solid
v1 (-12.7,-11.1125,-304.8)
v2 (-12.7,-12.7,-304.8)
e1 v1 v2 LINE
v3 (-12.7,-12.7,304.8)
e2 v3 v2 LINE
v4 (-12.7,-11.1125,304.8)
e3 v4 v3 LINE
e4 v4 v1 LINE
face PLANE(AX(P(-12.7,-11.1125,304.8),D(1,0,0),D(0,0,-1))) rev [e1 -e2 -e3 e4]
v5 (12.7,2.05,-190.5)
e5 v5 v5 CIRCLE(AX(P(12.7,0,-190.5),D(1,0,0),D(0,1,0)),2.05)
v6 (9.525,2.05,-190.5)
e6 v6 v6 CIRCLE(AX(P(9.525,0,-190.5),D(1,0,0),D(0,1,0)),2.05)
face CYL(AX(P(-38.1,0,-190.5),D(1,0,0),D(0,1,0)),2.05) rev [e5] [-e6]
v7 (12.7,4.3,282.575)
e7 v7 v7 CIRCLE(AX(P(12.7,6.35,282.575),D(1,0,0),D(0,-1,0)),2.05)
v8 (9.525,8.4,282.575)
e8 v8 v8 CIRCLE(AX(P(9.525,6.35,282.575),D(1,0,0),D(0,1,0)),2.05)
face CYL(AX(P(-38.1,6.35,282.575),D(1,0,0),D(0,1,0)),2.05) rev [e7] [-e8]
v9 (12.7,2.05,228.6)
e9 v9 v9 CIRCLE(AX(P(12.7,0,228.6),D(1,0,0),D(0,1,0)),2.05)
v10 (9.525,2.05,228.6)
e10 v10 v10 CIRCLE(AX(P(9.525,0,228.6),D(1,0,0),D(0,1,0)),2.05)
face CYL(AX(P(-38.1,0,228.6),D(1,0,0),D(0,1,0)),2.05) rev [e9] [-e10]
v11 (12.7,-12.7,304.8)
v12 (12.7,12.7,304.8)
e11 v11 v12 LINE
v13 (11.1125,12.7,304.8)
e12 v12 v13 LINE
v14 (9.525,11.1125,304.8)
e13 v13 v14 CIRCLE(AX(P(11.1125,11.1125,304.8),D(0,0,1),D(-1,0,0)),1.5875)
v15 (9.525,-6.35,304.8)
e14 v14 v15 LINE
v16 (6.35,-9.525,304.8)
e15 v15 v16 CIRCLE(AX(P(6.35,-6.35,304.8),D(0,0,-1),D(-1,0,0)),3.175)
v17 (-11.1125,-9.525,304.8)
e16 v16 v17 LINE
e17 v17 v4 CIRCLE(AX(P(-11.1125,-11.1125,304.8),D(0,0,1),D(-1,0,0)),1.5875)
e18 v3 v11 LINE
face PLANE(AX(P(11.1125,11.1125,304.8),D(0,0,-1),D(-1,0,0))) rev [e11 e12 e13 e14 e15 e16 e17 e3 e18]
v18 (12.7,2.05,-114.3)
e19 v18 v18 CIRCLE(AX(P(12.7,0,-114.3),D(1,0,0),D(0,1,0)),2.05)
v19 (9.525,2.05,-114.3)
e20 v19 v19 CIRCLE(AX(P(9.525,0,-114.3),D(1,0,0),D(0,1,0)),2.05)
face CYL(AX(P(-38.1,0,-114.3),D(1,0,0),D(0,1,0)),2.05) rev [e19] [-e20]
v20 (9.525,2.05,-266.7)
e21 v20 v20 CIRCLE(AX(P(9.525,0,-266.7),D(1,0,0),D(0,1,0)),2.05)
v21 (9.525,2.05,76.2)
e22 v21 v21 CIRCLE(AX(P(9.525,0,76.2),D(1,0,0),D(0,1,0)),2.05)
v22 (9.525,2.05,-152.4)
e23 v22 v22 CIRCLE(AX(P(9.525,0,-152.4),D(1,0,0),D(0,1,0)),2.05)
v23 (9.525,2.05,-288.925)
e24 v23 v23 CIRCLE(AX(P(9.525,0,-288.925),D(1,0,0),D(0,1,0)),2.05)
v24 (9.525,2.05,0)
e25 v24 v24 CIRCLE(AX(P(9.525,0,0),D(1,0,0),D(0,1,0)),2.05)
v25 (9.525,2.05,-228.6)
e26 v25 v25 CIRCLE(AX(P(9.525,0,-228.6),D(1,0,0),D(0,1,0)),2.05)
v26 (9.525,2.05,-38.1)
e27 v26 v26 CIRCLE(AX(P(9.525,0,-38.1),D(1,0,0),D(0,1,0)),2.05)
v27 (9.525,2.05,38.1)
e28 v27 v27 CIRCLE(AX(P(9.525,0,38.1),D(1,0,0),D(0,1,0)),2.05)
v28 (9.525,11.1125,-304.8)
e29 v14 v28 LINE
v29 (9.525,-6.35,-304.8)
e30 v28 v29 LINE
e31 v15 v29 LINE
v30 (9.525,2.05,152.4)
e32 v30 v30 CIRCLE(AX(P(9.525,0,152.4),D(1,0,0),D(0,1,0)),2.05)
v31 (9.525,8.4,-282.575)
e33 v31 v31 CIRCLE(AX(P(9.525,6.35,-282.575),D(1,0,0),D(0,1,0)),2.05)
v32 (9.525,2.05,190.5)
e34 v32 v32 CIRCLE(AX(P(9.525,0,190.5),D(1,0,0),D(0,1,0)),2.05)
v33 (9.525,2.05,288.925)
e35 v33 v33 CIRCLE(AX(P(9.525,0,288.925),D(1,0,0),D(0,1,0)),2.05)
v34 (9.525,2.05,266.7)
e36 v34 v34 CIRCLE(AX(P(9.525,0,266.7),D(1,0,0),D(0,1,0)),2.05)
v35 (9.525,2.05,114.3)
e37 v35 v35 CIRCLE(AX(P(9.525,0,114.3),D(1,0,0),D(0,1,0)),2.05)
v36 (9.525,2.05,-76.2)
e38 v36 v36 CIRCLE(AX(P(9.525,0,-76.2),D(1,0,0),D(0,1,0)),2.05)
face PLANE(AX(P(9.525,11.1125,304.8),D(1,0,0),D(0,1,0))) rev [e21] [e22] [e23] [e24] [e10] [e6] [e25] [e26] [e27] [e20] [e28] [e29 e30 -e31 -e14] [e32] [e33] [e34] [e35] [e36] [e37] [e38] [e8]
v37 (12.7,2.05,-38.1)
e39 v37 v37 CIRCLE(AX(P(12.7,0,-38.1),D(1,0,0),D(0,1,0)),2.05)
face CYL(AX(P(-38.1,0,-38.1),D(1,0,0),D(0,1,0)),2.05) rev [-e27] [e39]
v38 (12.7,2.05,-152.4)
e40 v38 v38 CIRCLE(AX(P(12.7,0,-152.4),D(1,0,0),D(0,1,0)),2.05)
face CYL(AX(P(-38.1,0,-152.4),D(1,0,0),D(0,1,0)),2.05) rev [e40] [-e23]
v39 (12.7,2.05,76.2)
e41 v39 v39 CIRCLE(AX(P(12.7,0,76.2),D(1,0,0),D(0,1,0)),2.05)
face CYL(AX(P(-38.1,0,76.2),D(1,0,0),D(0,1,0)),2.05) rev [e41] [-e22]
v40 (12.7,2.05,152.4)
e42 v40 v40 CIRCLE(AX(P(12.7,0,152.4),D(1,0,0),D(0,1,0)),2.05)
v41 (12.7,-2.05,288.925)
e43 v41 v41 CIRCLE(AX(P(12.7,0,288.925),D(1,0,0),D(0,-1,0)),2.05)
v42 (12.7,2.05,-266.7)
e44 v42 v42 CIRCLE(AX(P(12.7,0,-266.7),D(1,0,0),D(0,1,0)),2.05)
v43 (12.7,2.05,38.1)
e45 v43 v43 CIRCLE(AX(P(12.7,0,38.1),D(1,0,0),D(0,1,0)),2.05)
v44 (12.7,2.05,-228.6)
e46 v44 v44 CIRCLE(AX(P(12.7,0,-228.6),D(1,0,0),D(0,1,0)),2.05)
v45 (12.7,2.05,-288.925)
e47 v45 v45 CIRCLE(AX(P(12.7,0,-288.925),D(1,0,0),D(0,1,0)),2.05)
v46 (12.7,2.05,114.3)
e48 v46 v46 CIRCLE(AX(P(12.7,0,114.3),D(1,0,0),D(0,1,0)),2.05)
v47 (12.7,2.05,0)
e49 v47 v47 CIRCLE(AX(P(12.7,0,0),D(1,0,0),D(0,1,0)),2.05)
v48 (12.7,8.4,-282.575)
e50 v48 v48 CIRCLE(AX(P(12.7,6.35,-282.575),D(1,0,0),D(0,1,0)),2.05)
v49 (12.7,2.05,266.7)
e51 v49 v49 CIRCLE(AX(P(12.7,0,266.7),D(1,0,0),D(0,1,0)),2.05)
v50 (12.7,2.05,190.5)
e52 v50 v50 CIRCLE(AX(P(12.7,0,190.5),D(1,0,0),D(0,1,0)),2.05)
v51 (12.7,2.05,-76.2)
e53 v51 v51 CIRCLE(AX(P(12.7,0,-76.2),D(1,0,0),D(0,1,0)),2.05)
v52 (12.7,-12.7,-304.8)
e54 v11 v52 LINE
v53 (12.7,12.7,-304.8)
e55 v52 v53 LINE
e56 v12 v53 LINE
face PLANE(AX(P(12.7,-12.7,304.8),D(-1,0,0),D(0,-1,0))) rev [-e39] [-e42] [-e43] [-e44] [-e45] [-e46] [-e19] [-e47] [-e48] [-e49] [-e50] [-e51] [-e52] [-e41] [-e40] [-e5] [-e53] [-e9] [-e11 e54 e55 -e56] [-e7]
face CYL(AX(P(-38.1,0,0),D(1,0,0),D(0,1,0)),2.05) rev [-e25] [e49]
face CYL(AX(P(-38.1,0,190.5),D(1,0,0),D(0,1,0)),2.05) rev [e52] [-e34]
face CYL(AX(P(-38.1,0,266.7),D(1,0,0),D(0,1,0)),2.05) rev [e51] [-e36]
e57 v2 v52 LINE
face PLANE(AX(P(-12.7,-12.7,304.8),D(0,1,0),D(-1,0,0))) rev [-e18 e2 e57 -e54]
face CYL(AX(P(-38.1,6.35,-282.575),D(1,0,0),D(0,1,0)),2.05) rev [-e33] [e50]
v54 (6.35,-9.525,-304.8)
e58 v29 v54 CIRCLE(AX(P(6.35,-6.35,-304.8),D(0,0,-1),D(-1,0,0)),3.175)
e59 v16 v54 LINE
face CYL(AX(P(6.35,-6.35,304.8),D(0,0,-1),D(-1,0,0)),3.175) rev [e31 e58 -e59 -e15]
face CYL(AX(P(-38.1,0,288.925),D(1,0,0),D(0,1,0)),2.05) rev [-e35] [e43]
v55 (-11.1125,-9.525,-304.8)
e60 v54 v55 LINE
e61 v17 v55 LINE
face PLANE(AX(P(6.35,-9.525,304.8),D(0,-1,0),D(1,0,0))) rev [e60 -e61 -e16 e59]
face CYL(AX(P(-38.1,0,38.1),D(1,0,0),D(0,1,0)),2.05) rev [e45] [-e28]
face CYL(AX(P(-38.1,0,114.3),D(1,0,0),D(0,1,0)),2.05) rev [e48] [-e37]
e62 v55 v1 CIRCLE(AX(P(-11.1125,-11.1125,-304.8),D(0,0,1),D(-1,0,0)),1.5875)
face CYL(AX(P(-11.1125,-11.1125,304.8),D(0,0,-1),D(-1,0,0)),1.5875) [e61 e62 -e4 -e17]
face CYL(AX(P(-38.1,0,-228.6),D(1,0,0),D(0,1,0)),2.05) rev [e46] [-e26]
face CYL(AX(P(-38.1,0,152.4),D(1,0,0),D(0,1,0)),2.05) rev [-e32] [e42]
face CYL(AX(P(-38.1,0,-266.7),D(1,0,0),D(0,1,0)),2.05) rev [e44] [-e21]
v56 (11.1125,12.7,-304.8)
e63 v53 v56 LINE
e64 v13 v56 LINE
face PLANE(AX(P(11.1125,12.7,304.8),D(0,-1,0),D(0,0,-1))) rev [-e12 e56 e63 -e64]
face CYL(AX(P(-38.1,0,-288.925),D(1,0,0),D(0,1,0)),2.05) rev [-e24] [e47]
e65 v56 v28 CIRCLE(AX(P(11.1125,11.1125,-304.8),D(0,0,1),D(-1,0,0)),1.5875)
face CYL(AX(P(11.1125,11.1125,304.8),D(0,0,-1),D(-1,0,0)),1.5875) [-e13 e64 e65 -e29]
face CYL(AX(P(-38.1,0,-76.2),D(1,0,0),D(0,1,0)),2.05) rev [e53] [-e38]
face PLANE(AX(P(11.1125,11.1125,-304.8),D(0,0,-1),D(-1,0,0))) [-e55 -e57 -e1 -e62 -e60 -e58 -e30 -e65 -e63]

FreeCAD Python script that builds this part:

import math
import FreeCAD as App
import Part
import Sketcher
Q = App.Units.Quantity

doc = App.newDocument("Part")
params = doc.addObject("Spreadsheet::Sheet", "Params")
for row, (alias, value) in enumerate([
    ("sketch1_width", "1 in"),
    ("sketch1_radius", "0.0625 in"),
    ("sketch1_radius2", "0.125 in"),
    ("pad1_length", "24 in"),
    ("pocket1_length", "2 in"),
], start=1):
    params.set(f"A{row}", alias)
    params.set(f"B{row}", "=" + value)
    params.setAlias(f"B{row}", alias)

body = doc.addObject("PartDesign::Body", "Body")

# Sketch on XY plane
sketch1 = body.newObject("Sketcher::SketchObject", "Sketch")
sketch1.AttachmentSupport = (doc.getObject("XY_Plane"), [""])
sketch1.MapMode = "FlatFace"
sketch1.addGeometry(Part.LineSegment(App.Vector(-12.7, -12.7, 0), App.Vector(12.7, -12.7, 0)), False)
sketch1.addGeometry(Part.LineSegment(App.Vector(12.7, -12.7, 0), App.Vector(12.7, 12.7, 0)), False)
sketch1.addGeometry(Part.LineSegment(App.Vector(12.7, 12.7, 0), App.Vector(11.1, 12.7, 0)), False)
sketch1.addGeometry(Part.ArcOfCircle(Part.Circle(App.Vector(11.1, 11.1, 0), App.Vector(0, 0, 1), 1.6), math.radians(90), math.radians(180)), False)
sketch1.addGeometry(Part.LineSegment(App.Vector(9.5, 11.1, 0), App.Vector(9.5, -6.3, 0)), False)
sketch1.addGeometry(Part.ArcOfCircle(Part.Circle(App.Vector(6.3, -6.3, 0), App.Vector(0, 0, 1), 3.2), math.radians(-90), math.radians(0)), False)
sketch1.addGeometry(Part.LineSegment(App.Vector(6.3, -9.5, 0), App.Vector(-11.1, -9.5, 0)), False)
sketch1.addGeometry(Part.ArcOfCircle(Part.Circle(App.Vector(-11.1, -11.1, 0), App.Vector(0, 0, 1), 1.6), math.radians(90), math.radians(180)), False)
sketch1.addGeometry(Part.LineSegment(App.Vector(-12.7, -11.1, 0), App.Vector(-12.7, -12.7, 0)), False)
sketch1.addConstraint(Sketcher.Constraint("Coincident", 0, 2, 1, 1))
sketch1.addConstraint(Sketcher.Constraint("Coincident", 1, 2, 2, 1))
sketch1.addConstraint(Sketcher.Constraint("Tangent", 2, 2, 3, 1))
sketch1.addConstraint(Sketcher.Constraint("Tangent", 3, 2, 4, 1))
sketch1.addConstraint(Sketcher.Constraint("Tangent", 4, 2, 5, 2))
sketch1.addConstraint(Sketcher.Constraint("Tangent", 5, 1, 6, 1))
sketch1.addConstraint(Sketcher.Constraint("Tangent", 6, 2, 7, 1))
sketch1.addConstraint(Sketcher.Constraint("Tangent", 7, 2, 8, 1))
sketch1.addConstraint(Sketcher.Constraint("Coincident", 8, 2, 0, 1))
sketch1.addConstraint(Sketcher.Constraint("Horizontal", 0))
sketch1.addConstraint(Sketcher.Constraint("Vertical", 1))
sketch1.addConstraint(Sketcher.Constraint("Horizontal", 2))
sketch1.addConstraint(Sketcher.Constraint("Vertical", 4))
sketch1.addConstraint(Sketcher.Constraint("Horizontal", 6))
sketch1.addConstraint(Sketcher.Constraint("Vertical", 8))
sketch1.addConstraint(Sketcher.Constraint("Equal", 3, 7))
sketch1.addConstraint(Sketcher.Constraint("Symmetric", 3, 3, 7, 3, -1, 1))
sketch1.addConstraint(Sketcher.Constraint("Symmetric", 1, 2, 8, 2, -1, 1))
sketch1.addConstraint(Sketcher.Constraint("Equal", 0, 1))
sketch1.addConstraint(Sketcher.Constraint("DistanceX", 0, 1, 0, 2, Q("1 in")))
sketch1.addConstraint(Sketcher.Constraint("Radius", 3, Q("0.0625 in")))
sketch1.addConstraint(Sketcher.Constraint("Radius", 5, Q("0.125 in")))
sketch1.setExpression("Constraints[19]", "Params.sketch1_width")
sketch1.setExpression("Constraints[20]", "Params.sketch1_radius")
sketch1.setExpression("Constraints[21]", "Params.sketch1_radius2")
pad1 = body.newObject("PartDesign::Pad", "Pad")
pad1.Profile = sketch1
pad1.setExpression("Length", "Params.pad1_length")
pad1.Midplane = True

# Sketch on YZ plane
sketch2 = body.newObject("Sketcher::SketchObject", "Sketch001")
sketch2.AttachmentSupport = (doc.getObject("YZ_Plane"), [""])
sketch2.MapMode = "FlatFace"
sketch2.AttachmentOffset = App.Placement(App.Vector(0, 0, 0.5 * 25.4), App.Rotation())
sketch2.addGeometry(Part.Circle(App.Vector(0, -288.9, 0), App.Vector(0, 0, 1), 2), False)
sketch2.addGeometry(Part.Circle(App.Vector(6.3, -282.6, 0), App.Vector(0, 0, 1), 2), False)
sketch2.addGeometry(Part.Circle(App.Vector(0, -266.7, 0), App.Vector(0, 0, 1), 2), False)
sketch2.addGeometry(Part.Circle(App.Vector(0, -228.6, 0), App.Vector(0, 0, 1), 2), False)
sketch2.addGeometry(Part.Circle(App.Vector(0, -190.5, 0), App.Vector(0, 0, 1), 2), False)
sketch2.addGeometry(Part.Circle(App.Vector(0, -152.4, 0), App.Vector(0, 0, 1), 2), False)
sketch2.addGeometry(Part.Circle(App.Vector(0, -114.3, 0), App.Vector(0, 0, 1), 2), False)
sketch2.addGeometry(Part.Circle(App.Vector(0, -76.2, 0), App.Vector(0, 0, 1), 2), False)
sketch2.addGeometry(Part.Circle(App.Vector(0, -38.1, 0), App.Vector(0, 0, 1), 2), False)
sketch2.addGeometry(Part.Circle(App.Vector(0, 0, 0), App.Vector(0, 0, 1), 2), False)
sketch2.addGeometry(Part.Circle(App.Vector(0, 38.1, 0), App.Vector(0, 0, 1), 2), False)
sketch2.addGeometry(Part.Circle(App.Vector(0, 76.2, 0), App.Vector(0, 0, 1), 2), False)
sketch2.addGeometry(Part.Circle(App.Vector(0, 114.3, 0), App.Vector(0, 0, 1), 2), False)
sketch2.addGeometry(Part.Circle(App.Vector(0, 152.4, 0), App.Vector(0, 0, 1), 2), False)
sketch2.addGeometry(Part.Circle(App.Vector(0, 190.5, 0), App.Vector(0, 0, 1), 2), False)
sketch2.addGeometry(Part.Circle(App.Vector(0, 228.6, 0), App.Vector(0, 0, 1), 2), False)
sketch2.addGeometry(Part.Circle(App.Vector(0, 266.7, 0), App.Vector(0, 0, 1), 2), False)
sketch2.addGeometry(Part.Circle(App.Vector(6.3, 282.6, 0), App.Vector(0, 0, 1), 2), False)
sketch2.addGeometry(Part.Circle(App.Vector(0, 288.9, 0), App.Vector(0, 0, 1), 2), False)
sketch2.addConstraint(Sketcher.Constraint("Coincident", 9, 3, -1, 1))
sketch2.addConstraint(Sketcher.Constraint("Equal", 0, 1))
sketch2.addConstraint(Sketcher.Constraint("Equal", 1, 2))
sketch2.addConstraint(Sketcher.Constraint("Equal", 2, 3))
sketch2.addConstraint(Sketcher.Constraint("Equal", 3, 4))
sketch2.addConstraint(Sketcher.Constraint("Equal", 4, 5))
sketch2.addConstraint(Sketcher.Constraint("Equal", 5, 6))
sketch2.addConstraint(Sketcher.Constraint("Equal", 6, 7))
sketch2.addConstraint(Sketcher.Constraint("Equal", 7, 8))
sketch2.addConstraint(Sketcher.Constraint("Equal", 8, 9))
sketch2.addConstraint(Sketcher.Constraint("Equal", 9, 10))
sketch2.addConstraint(Sketcher.Constraint("Equal", 10, 11))
sketch2.addConstraint(Sketcher.Constraint("Equal", 11, 12))
sketch2.addConstraint(Sketcher.Constraint("Equal", 12, 13))
sketch2.addConstraint(Sketcher.Constraint("Equal", 13, 14))
sketch2.addConstraint(Sketcher.Constraint("Equal", 14, 15))
sketch2.addConstraint(Sketcher.Constraint("Equal", 15, 16))
sketch2.addConstraint(Sketcher.Constraint("Equal", 16, 17))
sketch2.addConstraint(Sketcher.Constraint("Equal", 17, 18))
sketch2.addConstraint(Sketcher.Constraint("Symmetric", 8, 3, 10, 3, -1, 1))
sketch2.addConstraint(Sketcher.Constraint("Symmetric", 7, 3, 11, 3, -1, 1))
sketch2.addConstraint(Sketcher.Constraint("Symmetric", 6, 3, 12, 3, -1, 1))
sketch2.addConstraint(Sketcher.Constraint("Symmetric", 5, 3, 13, 3, -1, 1))
sketch2.addConstraint(Sketcher.Constraint("Symmetric", 4, 3, 14, 3, -1, 1))
sketch2.addConstraint(Sketcher.Constraint("Symmetric", 3, 3, 15, 3, -1, 1))
sketch2.addConstraint(Sketcher.Constraint("Symmetric", 2, 3, 16, 3, -1, 1))
sketch2.addConstraint(Sketcher.Constraint("Symmetric", 0, 3, 18, 3, -1, 1))
sketch2.addConstraint(Sketcher.Constraint("Symmetric", 1, 3, 17, 3, -1))
sketch2.addConstraint(Sketcher.Constraint("PointOnObject", 0, 3, -2))
sketch2.addConstraint(Sketcher.Constraint("PointOnObject", 2, 3, -2))
sketch2.addConstraint(Sketcher.Constraint("PointOnObject", 3, 3, -2))
sketch2.addConstraint(Sketcher.Constraint("PointOnObject", 4, 3, -2))
sketch2.addConstraint(Sketcher.Constraint("PointOnObject", 5, 3, -2))
sketch2.addConstraint(Sketcher.Constraint("PointOnObject", 6, 3, -2))
sketch2.addConstraint(Sketcher.Constraint("PointOnObject", 7, 3, -2))
sketch2.addConstraint(Sketcher.Constraint("PointOnObject", 8, 3, -2))
sketch2.addConstraint(Sketcher.Constraint("DistanceY", 3, 3, -1, 1, Q("9 in")))
sketch2.addConstraint(Sketcher.Constraint("DistanceY", 5, 3, -1, 1, Q("6 in")))
sketch2.addConstraint(Sketcher.Constraint("DistanceY", 7, 3, -1, 1, Q("3 in")))
sketch2.addConstraint(Sketcher.Constraint("DistanceY", 2, 3, 4, 3, Q("3 in")))
sketch2.addConstraint(Sketcher.Constraint("DistanceY", 4, 3, 6, 3, Q("3 in")))
sketch2.addConstraint(Sketcher.Constraint("DistanceY", 6, 3, 8, 3, Q("3 in")))
sketch2.addConstraint(Sketcher.Constraint("DistanceY", 8, 3, 10, 3, Q("3 in")))
sketch2.addConstraint(Sketcher.Constraint("Diameter", 0, 4.1))
sketch2.addConstraint(Sketcher.Constraint("DistanceX", -1, 1, 1, 3, Q("0.25 in")))
sketch2.addConstraint(Sketcher.Constraint("DistanceY", 0, 3, 1, 3, Q("0.25 in")))
sketch2.addConstraint(Sketcher.Constraint("DistanceY", 0, 3, -1, 1, Q("11.375 in")))
pocket1 = body.newObject("PartDesign::Pocket", "Pocket")
pocket1.Profile = sketch2
pocket1.setExpression("Length", "Params.pocket1_length")

doc.recompute()
